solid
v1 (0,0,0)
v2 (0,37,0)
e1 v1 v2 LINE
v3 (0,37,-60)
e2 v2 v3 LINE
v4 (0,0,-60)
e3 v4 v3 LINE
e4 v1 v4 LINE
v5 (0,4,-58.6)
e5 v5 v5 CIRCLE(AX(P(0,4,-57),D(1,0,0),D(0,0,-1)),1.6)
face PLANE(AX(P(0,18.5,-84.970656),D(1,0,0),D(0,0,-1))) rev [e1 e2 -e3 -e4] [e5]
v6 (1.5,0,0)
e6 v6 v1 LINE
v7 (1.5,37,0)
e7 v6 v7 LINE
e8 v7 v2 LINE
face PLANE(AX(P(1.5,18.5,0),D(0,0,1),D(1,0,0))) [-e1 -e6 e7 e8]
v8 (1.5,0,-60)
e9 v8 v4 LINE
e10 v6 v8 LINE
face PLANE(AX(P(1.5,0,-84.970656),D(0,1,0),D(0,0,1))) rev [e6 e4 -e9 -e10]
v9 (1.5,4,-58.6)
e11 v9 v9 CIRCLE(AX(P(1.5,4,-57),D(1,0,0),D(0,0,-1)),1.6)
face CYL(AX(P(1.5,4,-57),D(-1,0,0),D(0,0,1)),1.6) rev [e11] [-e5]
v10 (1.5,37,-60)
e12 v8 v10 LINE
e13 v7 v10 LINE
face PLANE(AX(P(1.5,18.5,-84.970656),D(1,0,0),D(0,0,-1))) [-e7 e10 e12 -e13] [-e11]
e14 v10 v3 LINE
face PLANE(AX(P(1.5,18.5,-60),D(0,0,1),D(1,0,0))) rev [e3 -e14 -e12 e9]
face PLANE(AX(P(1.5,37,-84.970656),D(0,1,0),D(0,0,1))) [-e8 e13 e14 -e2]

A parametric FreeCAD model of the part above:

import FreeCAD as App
import Part
import Sketcher

doc = App.newDocument("Part")
body = doc.addObject("PartDesign::Body", "Body")

# Sketch on YZ plane
sketch1 = doc.addObject("Sketcher::SketchObject", "Sketch")
body.addObject(sketch1)
sketch1.AttachmentSupport = (doc.YZ_Plane, [""])
sketch1.MapMode = "FlatFace"
sketch1.addGeometry(Part.LineSegment(App.Vector(37, 0, 0), App.Vector(0, 0, 0)), False)
sketch1.addGeometry(Part.LineSegment(App.Vector(0, 0, 0), App.Vector(0, -60, 0)), False)
sketch1.addGeometry(Part.LineSegment(App.Vector(0, -60, 0), App.Vector(37, -60, 0)), False)
sketch1.addGeometry(Part.LineSegment(App.Vector(37, -60, 0), App.Vector(37, 0, 0)), False)
sketch1.addGeometry(Part.Circle(App.Vector(4, -57, 0), App.Vector(0, 0, 1), 1.6), False)
sketch1.addConstraint(Sketcher.Constraint("Coincident", 0, 2, 1, 1))
sketch1.addConstraint(Sketcher.Constraint("Coincident", 1, 2, 2, 1))
sketch1.addConstraint(Sketcher.Constraint("Coincident", 2, 2, 3, 1))
sketch1.addConstraint(Sketcher.Constraint("Coincident", 3, 2, 0, 1))
sketch1.addConstraint(Sketcher.Constraint("Horizontal", 0))
sketch1.addConstraint(Sketcher.Constraint("Vertical", 1))
sketch1.addConstraint(Sketcher.Constraint("Horizontal", 2))
sketch1.addConstraint(Sketcher.Constraint("Vertical", 3))
sketch1.addConstraint(Sketcher.Constraint("Coincident", 0, 2, -1, 1))
sketch1.addConstraint(Sketcher.Constraint("Diameter", 4, 3.2))
sketch1.addConstraint(Sketcher.Constraint("DistanceX", 0, 2, 0, 1, 37.0))
sketch1.addConstraint(Sketcher.Constraint("DistanceY", 1, 2, 1, 1, 60.0))
sketch1.addConstraint(Sketcher.Constraint("DistanceX", -1, 1, 4, 3, 4.0))
sketch1.addConstraint(Sketcher.Constraint("DistanceY", 4, 3, -1, 1, 57.0))
pad1 = doc.addObject("PartDesign::Pad", "Pad")
body.addObject(pad1)
pad1.Profile = sketch1
pad1.Length = 1.5

doc.recompute()
